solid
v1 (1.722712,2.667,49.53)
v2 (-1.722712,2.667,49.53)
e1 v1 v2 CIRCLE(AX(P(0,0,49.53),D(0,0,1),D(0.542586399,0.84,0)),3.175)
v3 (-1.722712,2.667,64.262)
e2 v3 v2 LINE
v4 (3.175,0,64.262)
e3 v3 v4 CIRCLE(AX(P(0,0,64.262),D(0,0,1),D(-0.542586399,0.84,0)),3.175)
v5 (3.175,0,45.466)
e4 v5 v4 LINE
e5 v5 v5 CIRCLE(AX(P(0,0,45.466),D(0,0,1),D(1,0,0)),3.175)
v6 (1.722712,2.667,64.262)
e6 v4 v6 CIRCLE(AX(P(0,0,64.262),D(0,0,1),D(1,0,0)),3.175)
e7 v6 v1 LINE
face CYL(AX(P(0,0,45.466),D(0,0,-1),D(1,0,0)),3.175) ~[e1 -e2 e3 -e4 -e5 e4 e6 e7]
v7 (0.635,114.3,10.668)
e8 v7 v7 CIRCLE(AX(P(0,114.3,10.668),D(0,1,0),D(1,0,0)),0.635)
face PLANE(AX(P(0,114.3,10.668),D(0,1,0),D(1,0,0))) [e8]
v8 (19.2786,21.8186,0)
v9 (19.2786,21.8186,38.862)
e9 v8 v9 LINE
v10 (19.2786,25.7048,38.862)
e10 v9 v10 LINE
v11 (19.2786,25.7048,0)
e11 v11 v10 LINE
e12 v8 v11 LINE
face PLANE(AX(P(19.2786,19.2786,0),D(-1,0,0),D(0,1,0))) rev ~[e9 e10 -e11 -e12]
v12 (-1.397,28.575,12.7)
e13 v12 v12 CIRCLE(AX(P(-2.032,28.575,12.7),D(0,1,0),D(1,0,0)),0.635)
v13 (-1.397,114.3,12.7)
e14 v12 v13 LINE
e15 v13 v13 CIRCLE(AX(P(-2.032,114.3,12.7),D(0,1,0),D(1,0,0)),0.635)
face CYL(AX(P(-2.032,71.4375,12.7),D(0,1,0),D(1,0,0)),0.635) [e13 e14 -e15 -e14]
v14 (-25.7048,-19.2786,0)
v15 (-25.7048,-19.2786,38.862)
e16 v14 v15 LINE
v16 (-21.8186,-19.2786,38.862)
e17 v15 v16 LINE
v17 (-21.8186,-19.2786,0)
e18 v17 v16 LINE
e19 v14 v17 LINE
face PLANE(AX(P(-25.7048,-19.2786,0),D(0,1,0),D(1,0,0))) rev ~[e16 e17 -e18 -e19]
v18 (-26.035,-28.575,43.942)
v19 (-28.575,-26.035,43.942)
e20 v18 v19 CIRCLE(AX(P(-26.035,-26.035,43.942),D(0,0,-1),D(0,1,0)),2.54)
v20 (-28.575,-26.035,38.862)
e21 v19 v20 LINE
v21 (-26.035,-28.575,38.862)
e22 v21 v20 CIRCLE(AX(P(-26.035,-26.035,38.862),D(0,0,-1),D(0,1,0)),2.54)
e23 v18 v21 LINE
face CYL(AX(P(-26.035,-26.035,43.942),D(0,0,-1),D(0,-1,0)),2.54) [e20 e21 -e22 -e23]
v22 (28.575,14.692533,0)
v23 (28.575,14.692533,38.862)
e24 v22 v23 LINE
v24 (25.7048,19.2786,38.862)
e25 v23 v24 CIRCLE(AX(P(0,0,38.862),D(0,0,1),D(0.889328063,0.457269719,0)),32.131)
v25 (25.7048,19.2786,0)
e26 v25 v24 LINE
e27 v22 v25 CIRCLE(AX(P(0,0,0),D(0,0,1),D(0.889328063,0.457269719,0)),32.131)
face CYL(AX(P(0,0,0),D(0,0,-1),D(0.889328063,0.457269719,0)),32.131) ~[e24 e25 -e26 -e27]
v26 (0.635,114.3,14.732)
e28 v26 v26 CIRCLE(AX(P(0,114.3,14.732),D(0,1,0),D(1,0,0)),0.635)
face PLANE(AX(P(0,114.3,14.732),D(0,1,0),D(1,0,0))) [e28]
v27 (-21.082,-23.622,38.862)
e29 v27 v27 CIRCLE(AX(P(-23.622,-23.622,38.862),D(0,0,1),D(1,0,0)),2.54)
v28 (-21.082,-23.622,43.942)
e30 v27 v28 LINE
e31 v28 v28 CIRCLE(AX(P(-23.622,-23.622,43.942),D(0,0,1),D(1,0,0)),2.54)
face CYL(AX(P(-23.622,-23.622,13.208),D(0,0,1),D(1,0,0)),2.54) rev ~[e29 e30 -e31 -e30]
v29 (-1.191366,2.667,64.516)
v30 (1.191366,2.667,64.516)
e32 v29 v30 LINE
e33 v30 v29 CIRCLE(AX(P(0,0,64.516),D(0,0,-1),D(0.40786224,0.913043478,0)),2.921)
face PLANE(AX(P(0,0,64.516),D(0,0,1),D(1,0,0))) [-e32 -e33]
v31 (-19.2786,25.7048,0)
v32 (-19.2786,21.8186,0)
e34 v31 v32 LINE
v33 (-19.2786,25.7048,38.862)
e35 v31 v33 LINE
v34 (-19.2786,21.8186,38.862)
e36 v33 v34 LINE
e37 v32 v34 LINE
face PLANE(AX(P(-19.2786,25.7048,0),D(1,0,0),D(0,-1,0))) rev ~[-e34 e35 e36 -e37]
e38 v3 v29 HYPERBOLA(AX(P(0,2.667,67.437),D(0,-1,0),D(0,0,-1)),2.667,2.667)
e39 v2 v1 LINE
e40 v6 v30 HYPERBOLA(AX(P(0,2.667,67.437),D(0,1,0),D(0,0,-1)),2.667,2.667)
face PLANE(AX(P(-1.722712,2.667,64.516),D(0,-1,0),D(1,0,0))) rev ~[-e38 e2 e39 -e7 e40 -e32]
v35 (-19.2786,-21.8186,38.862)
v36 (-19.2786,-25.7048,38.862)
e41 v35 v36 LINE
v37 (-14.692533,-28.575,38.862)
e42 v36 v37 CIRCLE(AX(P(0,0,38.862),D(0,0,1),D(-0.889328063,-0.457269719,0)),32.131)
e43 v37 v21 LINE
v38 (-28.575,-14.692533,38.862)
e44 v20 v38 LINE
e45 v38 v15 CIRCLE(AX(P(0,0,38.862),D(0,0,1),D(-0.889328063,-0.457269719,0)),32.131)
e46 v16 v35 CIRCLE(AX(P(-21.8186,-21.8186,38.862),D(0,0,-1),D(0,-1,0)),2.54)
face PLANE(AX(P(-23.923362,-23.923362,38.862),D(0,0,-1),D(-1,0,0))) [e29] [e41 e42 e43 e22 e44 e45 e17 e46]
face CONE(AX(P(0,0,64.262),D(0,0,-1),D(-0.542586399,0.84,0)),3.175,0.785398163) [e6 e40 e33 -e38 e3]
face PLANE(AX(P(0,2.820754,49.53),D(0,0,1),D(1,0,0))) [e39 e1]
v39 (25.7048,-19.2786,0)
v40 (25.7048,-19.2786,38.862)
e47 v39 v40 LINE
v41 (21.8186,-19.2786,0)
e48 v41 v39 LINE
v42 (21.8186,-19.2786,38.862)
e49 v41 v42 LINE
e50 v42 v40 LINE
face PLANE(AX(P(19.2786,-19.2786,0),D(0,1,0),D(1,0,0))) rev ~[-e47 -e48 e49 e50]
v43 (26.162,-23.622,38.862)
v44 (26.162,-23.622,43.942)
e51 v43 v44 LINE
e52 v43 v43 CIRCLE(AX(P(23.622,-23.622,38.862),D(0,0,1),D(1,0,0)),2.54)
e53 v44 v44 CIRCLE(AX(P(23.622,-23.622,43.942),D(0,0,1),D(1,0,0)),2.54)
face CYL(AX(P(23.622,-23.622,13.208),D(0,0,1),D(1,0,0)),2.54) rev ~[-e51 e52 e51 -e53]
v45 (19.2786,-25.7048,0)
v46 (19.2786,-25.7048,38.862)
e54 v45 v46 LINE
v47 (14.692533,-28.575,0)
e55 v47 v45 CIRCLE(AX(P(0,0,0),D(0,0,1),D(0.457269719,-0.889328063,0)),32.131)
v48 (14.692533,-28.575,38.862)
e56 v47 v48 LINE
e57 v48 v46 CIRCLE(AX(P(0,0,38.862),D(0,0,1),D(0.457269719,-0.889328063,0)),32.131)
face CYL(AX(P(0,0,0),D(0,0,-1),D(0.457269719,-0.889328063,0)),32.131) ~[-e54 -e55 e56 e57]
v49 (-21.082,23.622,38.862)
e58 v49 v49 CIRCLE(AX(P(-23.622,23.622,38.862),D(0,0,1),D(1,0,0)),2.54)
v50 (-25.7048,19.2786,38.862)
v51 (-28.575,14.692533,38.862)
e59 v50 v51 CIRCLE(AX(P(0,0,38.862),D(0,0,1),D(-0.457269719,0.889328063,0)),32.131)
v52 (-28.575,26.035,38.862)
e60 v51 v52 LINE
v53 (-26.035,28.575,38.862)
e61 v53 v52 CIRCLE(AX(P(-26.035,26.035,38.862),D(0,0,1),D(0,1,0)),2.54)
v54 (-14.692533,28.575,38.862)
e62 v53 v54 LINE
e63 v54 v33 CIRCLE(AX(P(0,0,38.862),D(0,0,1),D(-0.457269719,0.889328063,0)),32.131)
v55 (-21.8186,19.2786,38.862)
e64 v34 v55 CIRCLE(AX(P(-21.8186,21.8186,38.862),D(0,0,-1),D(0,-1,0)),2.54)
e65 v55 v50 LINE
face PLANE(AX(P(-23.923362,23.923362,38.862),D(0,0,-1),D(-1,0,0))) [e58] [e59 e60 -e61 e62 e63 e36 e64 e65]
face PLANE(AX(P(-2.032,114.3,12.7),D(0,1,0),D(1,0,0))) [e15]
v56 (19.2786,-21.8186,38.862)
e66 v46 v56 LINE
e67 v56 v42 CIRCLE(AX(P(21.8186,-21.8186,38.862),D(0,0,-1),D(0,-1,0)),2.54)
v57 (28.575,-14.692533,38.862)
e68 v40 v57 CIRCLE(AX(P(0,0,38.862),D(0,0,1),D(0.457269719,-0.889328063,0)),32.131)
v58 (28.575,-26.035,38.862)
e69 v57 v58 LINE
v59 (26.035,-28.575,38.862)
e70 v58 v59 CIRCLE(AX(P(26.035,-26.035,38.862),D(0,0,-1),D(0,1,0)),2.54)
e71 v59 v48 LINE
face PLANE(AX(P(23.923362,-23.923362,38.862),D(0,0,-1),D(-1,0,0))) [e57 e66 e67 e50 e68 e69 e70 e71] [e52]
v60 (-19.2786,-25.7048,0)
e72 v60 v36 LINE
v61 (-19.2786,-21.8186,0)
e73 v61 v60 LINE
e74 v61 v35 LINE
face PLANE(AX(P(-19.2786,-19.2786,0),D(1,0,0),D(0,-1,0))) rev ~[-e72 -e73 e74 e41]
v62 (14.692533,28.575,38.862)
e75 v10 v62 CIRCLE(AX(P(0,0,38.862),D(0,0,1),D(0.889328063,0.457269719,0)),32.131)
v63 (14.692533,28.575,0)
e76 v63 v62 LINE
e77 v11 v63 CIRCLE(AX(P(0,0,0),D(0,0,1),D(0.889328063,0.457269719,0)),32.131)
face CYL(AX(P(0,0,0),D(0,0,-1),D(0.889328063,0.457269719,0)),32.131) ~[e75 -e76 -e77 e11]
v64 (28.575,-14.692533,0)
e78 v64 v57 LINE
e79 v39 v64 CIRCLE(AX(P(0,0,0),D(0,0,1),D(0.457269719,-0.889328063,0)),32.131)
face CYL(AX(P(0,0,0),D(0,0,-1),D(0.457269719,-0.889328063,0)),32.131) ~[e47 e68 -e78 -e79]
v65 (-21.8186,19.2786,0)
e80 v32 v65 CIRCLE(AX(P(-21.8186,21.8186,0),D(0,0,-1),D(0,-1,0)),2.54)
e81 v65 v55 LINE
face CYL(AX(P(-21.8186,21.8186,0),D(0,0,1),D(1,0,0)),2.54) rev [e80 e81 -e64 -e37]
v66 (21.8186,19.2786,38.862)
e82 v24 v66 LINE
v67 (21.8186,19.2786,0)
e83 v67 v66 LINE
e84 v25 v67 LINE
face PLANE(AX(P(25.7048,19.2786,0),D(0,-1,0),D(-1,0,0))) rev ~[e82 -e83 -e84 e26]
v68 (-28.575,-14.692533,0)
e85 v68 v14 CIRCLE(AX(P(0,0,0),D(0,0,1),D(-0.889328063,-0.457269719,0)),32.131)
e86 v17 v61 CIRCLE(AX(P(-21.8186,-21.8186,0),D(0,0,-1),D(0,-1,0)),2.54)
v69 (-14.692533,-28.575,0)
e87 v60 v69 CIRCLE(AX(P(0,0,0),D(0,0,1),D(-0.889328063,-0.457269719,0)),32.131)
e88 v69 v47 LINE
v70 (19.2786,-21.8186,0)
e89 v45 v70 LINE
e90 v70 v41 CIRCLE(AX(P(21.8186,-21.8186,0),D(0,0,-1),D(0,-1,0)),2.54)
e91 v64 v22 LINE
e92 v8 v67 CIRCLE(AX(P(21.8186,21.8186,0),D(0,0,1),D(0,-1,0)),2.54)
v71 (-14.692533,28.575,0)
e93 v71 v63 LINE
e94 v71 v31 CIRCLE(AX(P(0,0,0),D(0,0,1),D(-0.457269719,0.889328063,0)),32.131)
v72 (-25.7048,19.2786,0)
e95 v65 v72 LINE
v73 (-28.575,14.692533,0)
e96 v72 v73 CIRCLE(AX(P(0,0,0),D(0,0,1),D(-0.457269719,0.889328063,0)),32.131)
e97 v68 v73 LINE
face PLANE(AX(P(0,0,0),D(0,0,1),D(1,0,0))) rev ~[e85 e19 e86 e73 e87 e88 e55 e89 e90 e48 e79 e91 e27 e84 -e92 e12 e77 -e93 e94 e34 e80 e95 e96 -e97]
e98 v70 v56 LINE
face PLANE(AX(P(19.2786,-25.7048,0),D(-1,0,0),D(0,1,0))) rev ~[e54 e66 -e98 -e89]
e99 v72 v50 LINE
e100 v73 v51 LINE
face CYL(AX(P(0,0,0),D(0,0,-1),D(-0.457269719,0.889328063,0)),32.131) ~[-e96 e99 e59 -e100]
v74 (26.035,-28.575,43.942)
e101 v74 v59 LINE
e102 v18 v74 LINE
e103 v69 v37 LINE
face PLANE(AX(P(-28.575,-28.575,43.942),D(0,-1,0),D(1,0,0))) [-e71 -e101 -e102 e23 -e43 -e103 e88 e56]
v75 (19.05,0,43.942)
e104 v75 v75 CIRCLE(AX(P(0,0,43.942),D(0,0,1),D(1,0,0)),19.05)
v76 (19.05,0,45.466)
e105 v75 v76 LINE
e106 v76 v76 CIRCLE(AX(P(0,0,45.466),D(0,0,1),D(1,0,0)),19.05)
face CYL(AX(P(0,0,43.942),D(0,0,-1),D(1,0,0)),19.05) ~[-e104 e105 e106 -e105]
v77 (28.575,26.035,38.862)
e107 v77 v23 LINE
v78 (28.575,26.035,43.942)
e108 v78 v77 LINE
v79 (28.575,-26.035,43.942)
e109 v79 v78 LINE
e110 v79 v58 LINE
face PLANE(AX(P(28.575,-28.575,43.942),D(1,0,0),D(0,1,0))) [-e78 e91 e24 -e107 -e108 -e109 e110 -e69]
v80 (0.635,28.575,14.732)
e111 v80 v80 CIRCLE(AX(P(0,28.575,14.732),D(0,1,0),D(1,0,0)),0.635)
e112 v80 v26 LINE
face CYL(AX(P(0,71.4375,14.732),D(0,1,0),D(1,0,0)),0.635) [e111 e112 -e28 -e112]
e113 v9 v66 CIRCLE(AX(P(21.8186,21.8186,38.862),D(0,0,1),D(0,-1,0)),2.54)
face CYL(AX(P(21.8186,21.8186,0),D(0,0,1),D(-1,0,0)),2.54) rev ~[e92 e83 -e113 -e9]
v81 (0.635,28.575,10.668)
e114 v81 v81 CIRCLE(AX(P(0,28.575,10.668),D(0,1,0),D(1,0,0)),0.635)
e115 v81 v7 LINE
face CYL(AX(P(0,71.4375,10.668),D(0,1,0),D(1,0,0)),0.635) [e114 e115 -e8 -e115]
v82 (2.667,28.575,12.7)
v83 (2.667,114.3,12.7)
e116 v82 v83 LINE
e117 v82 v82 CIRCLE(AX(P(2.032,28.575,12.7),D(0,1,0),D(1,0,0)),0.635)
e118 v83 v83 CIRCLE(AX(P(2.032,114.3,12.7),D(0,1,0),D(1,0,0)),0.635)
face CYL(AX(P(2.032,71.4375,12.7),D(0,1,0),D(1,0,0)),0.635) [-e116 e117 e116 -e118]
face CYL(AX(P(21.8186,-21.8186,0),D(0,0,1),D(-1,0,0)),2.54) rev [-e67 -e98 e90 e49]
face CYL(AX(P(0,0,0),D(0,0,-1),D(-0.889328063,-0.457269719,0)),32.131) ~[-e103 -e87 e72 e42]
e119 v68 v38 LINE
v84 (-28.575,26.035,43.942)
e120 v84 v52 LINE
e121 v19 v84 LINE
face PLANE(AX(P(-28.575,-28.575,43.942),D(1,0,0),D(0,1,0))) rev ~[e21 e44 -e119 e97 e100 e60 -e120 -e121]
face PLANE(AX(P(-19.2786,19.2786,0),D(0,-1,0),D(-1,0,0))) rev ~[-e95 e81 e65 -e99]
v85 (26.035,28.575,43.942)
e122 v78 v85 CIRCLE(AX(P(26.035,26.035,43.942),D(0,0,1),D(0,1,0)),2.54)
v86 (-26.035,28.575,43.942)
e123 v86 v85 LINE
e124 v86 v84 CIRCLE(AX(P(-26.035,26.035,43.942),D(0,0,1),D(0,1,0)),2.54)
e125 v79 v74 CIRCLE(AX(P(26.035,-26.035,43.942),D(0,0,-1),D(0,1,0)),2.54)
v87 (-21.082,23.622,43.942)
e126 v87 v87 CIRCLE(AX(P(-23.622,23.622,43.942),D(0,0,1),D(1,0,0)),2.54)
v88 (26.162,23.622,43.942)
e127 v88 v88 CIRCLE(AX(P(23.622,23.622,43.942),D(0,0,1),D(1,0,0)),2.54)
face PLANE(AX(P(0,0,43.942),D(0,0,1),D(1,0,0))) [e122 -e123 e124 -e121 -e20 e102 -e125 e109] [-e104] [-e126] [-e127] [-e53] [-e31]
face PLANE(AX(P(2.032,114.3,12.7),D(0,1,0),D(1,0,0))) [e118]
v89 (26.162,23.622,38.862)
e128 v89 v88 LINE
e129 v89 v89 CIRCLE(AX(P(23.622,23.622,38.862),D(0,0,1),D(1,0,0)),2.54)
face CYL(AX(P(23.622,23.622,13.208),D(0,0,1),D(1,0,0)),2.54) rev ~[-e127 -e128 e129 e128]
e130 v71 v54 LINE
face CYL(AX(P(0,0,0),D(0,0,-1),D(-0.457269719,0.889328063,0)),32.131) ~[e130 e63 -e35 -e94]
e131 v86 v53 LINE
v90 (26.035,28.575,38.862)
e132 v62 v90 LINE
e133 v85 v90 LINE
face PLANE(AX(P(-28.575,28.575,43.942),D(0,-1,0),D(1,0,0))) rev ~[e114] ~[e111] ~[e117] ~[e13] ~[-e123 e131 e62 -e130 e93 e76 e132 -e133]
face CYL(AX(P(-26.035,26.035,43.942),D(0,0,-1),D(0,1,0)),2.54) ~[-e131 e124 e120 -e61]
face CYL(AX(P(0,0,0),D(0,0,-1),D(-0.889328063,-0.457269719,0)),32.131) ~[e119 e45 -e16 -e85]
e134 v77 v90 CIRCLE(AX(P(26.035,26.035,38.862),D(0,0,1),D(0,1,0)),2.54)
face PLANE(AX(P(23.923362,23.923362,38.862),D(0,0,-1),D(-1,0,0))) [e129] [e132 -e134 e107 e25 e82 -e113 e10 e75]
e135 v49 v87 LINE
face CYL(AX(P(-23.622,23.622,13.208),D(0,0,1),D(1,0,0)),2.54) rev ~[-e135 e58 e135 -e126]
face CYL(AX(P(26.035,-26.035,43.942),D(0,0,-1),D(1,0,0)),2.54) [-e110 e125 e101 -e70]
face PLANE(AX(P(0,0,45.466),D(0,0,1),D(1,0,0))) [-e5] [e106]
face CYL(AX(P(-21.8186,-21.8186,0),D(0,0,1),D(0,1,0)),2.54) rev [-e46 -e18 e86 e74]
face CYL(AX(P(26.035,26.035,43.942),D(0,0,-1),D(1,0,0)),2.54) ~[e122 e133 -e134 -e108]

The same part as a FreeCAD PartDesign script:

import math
import FreeCAD as App
import Part
import Sketcher
Q = App.Units.Quantity


def edges_at(feature, points):
    """Names of the edges that pass closest to the given points."""
    edges = feature.Shape.Edges
    near = lambda p: min(range(len(edges)), key=lambda i: edges[i].distToShape(Part.Vertex(*p))[0])
    return sorted({f"Edge{near(p) + 1}" for p in points})


def add_polygon(sketch, points):
    """Adds a closed chain of lines whose ends are joined by coincident constraints."""
    first, n = sketch.GeometryCount, len(points)
    for a, b in zip(points, points[1:] + points[:1]):
        sketch.addGeometry(Part.LineSegment(App.Vector(*a, 0), App.Vector(*b, 0)), False)
    for i in range(n):
        sketch.addConstraint(Sketcher.Constraint("Coincident", first + i, 2, first + (i + 1) % n, 1))

doc = App.newDocument("Part")
params = doc.addObject("Spreadsheet::Sheet", "Params")
for row, (alias, value) in enumerate([
    ("sketch1_width", "2.25 in"),
    ("pad1_length", "1.73 in"),
    ("sketch2_radius", "1.265 in"),
    ("pocket1_length", "1.53 in"),
    ("sketch3_radius", "1.265 in"),
    ("sketch3_width", "0.253 in"),
    ("pocket2_length", "1.53 in"),
    ("sketch4_radius", "1.265 in"),
    ("pocket3_length", "1.53 in"),
    ("sketch5_radius", "1.265 in"),
    ("sketch5_width", "0.253 in"),
    ("pocket4_length", "1.53 in"),
    ("sketch6_radius", "1.265 in"),
    ("pocket5_length", "1.53 in"),
    ("sketch7_radius", "1.265 in"),
    ("sketch7_width", "0.253 in"),
    ("pocket6_length", "1.53 in"),
    ("sketch8_radius", "1.265 in"),
    ("pocket7_length", "1.53 in"),
    ("sketch9_radius", "1.265 in"),
    ("sketch9_width", "0.253 in"),
    ("pocket8_length", "1.53 in"),
    ("sketch10_diameter", "1.5 in"),
    ("pad2_length", "0.06 in"),
    ("sketch11_diameter", "0.25 in"),
    ("pad3_length", "0.75 in"),
    ("sketch12_radius", "0.125 in"),
    ("pocket9_length", "0.59 in"),
    ("sketch13_width", "0.025 in"),
    ("sketch13_height", "3.375 in"),
    ("revolution_angle", "360 deg"),
    ("sketch14_width", "0.025 in"),
    ("sketch14_height", "3.375 in"),
    ("revolution2_angle", "360 deg"),
    ("sketch15_width", "0.025 in"),
    ("sketch15_height", "3.375 in"),
    ("revolution3_angle", "360 deg"),
    ("sketch16_width", "0.025 in"),
    ("sketch16_height", "3.375 in"),
    ("revolution4_angle", "360 deg"),
    ("sketch17_diameter", "0.2 in"),
    ("hole_diameter", "0.2 in"),
    ("hole_depth", "1.01 in"),
    ("chamfer_size", "0.01 in"),
    ("fillet_radius", "0.1 in"),
], start=1):
    params.set(f"A{row}", alias)
    params.set(f"B{row}", "=" + value)
    params.setAlias(f"B{row}", alias)

body = doc.addObject("PartDesign::Body", "Body")

# Sketch on XY plane
sketch1 = doc.addObject("Sketcher::SketchObject", "Sketch")
body.addObject(sketch1)
sketch1.AttachmentSupport = (doc.XY_Plane, [""])
sketch1.MapMode = "FlatFace"
sketch1.AttachmentOffset = App.Placement(App.Vector(0, 0, 1.73 * 25.4), App.Rotation())
add_polygon(sketch1, [(-29, 29), (-29, -29), (29, -29), (29, 29)])  # lines 0-3
sketch1.addConstraint([
    Sketcher.Constraint("Vertical", 0),
    Sketcher.Constraint("Horizontal", 1),
    Sketcher.Constraint("Vertical", 2),
    Sketcher.Constraint("Horizontal", 3),
    Sketcher.Constraint("Symmetric", 0, 2, 2, 2, -1, 1),
    Sketcher.Constraint("Equal", 3, 0),
    Sketcher.Constraint("DistanceX", 1, 1, 1, 2, Q("2.25 in")),
])
sketch1.setExpression("Constraints[10]", "Params.sketch1_width")
pad1 = doc.addObject("PartDesign::Pad", "Pad")
body.addObject(pad1)
pad1.Profile = sketch1
pad1.setExpression("Length", "Params.pad1_length")
pad1.Reversed = True

# Sketch on XY plane
sketch2 = doc.addObject("Sketcher::SketchObject", "Sketch001")
body.addObject(sketch2)
sketch2.AttachmentSupport = (doc.XY_Plane, [""])
sketch2.MapMode = "FlatFace"
sketch2.addGeometry([
    Part.LineSegment(App.Vector(29, -29, 0), App.Vector(15, -29, 0)),
    Part.ArcOfCircle(Part.Circle(App.Vector(0, 0, 0), App.Vector(0, 0, 1), 32), math.radians(-63), math.radians(-27)),
    Part.LineSegment(App.Vector(29, -15, 0), App.Vector(29, -29, 0)),
], False)
sketch2.addConstraint([
    Sketcher.Constraint("Coincident", 0, 2, 1, 1),
    Sketcher.Constraint("Coincident", 1, 2, 2, 1),
    Sketcher.Constraint("Coincident", 2, 2, 0, 1),
    Sketcher.Constraint("Horizontal", 0),
    Sketcher.Constraint("Vertical", 2),
    Sketcher.Constraint("Coincident", 1, 3, -1, 1),
    Sketcher.Constraint("Equal", 0, 2),
    Sketcher.Constraint("Radius", 1, Q("1.265 in")),
    Sketcher.Constraint("DistanceY", 0, 2, -1, 1, Q("1.125 in")),
])
sketch2.setExpression("Constraints[7]", "Params.sketch2_radius")
pocket1 = doc.addObject("PartDesign::Pocket", "Pocket")
body.addObject(pocket1)
pocket1.Profile = sketch2
pocket1.setExpression("Length", "Params.pocket1_length")
pocket1.Reversed = True

# Sketch on XY plane
sketch3 = doc.addObject("Sketcher::SketchObject", "Sketch002")
body.addObject(sketch3)
sketch3.AttachmentSupport = (doc.XY_Plane, [""])
sketch3.MapMode = "FlatFace"
sketch3.addGeometry([
    Part.LineSegment(App.Vector(19, -26, 0), App.Vector(19, -19, 0)),
    Part.LineSegment(App.Vector(19, -19, 0), App.Vector(26, -19, 0)),
    Part.ArcOfCircle(Part.Circle(App.Vector(0, 0, 0), App.Vector(0, 0, 1), 32), math.radians(-53.13), math.radians(-36.87)),
], False)
sketch3.addConstraint([
    Sketcher.Constraint("Coincident", 0, 2, 1, 1),
    Sketcher.Constraint("Coincident", 1, 2, 2, 2),
    Sketcher.Constraint("Coincident", 2, 1, 0, 1),
    Sketcher.Constraint("Vertical", 0),
    Sketcher.Constraint("Horizontal", 1),
    Sketcher.Constraint("Coincident", 2, 3, -1, 1),
    Sketcher.Constraint("Equal", 1, 0),
    Sketcher.Constraint("Radius", 2, Q("1.265 in")),
    Sketcher.Constraint("DistanceX", 1, 1, 1, 2, Q("0.253 in")),
])
sketch3.setExpression("Constraints[7]", "Params.sketch3_radius")
sketch3.setExpression("Constraints[8]", "Params.sketch3_width")
pocket2 = doc.addObject("PartDesign::Pocket", "Pocket001")
body.addObject(pocket2)
pocket2.Profile = sketch3
pocket2.setExpression("Length", "Params.pocket2_length")
pocket2.Reversed = True

# Sketch on XY plane
sketch4 = doc.addObject("Sketcher::SketchObject", "Sketch003")
body.addObject(sketch4)
sketch4.AttachmentSupport = (doc.XY_Plane, [""])
sketch4.MapMode = "FlatFace"
sketch4.addGeometry([
    Part.LineSegment(App.Vector(29, 29, 0), App.Vector(29, 15, 0)),
    Part.ArcOfCircle(Part.Circle(App.Vector(0, 0, 0), App.Vector(0, 0, 1), 32), math.radians(27), math.radians(63)),
    Part.LineSegment(App.Vector(15, 29, 0), App.Vector(29, 29, 0)),
], False)
sketch4.addConstraint([
    Sketcher.Constraint("Coincident", 0, 2, 1, 1),
    Sketcher.Constraint("Coincident", 1, 2, 2, 1),
    Sketcher.Constraint("Coincident", 2, 2, 0, 1),
    Sketcher.Constraint("Vertical", 0),
    Sketcher.Constraint("Horizontal", 2),
    Sketcher.Constraint("Coincident", 1, 3, -1, 1),
    Sketcher.Constraint("Equal", 2, 0),
    Sketcher.Constraint("Radius", 1, Q("1.265 in")),
    Sketcher.Constraint("DistanceX", -1, 1, 0, 2, Q("1.125 in")),
])
sketch4.setExpression("Constraints[7]", "Params.sketch4_radius")
pocket3 = doc.addObject("PartDesign::Pocket", "Pocket002")
body.addObject(pocket3)
pocket3.Profile = sketch4
pocket3.setExpression("Length", "Params.pocket3_length")
pocket3.Reversed = True

# Sketch on XY plane
sketch5 = doc.addObject("Sketcher::SketchObject", "Sketch004")
body.addObject(sketch5)
sketch5.AttachmentSupport = (doc.XY_Plane, [""])
sketch5.MapMode = "FlatFace"
sketch5.addGeometry([
    Part.LineSegment(App.Vector(26, 19, 0), App.Vector(19, 19, 0)),
    Part.LineSegment(App.Vector(19, 19, 0), App.Vector(19, 26, 0)),
    Part.ArcOfCircle(Part.Circle(App.Vector(0, 0, 0), App.Vector(0, 0, 1), 32), math.radians(36.87), math.radians(53.13)),
], False)
sketch5.addConstraint([
    Sketcher.Constraint("Coincident", 0, 2, 1, 1),
    Sketcher.Constraint("Coincident", 1, 2, 2, 2),
    Sketcher.Constraint("Coincident", 2, 1, 0, 1),
    Sketcher.Constraint("Horizontal", 0),
    Sketcher.Constraint("Vertical", 1),
    Sketcher.Constraint("Coincident", 2, 3, -1, 1),
    Sketcher.Constraint("Equal", 0, 1),
    Sketcher.Constraint("Radius", 2, Q("1.265 in")),
    Sketcher.Constraint("DistanceX", 0, 2, 0, 1, Q("0.253 in")),
])
sketch5.setExpression("Constraints[7]", "Params.sketch5_radius")
sketch5.setExpression("Constraints[8]", "Params.sketch5_width")
pocket4 = doc.addObject("PartDesign::Pocket", "Pocket003")
body.addObject(pocket4)
pocket4.Profile = sketch5
pocket4.setExpression("Length", "Params.pocket4_length")
pocket4.Reversed = True

# Sketch on XY plane
sketch6 = doc.addObject("Sketcher::SketchObject", "Sketch005")
body.addObject(sketch6)
sketch6.AttachmentSupport = (doc.XY_Plane, [""])
sketch6.MapMode = "FlatFace"
sketch6.addGeometry([
    Part.LineSegment(App.Vector(-29, 29, 0), App.Vector(-15, 29, 0)),
    Part.ArcOfCircle(Part.Circle(App.Vector(0, 0, 0), App.Vector(0, 0, 1), 32), math.radians(117), math.radians(153)),
    Part.LineSegment(App.Vector(-29, 15, 0), App.Vector(-29, 29, 0)),
], False)
sketch6.addConstraint([
    Sketcher.Constraint("Coincident", 0, 2, 1, 1),
    Sketcher.Constraint("Coincident", 1, 2, 2, 1),
    Sketcher.Constraint("Coincident", 2, 2, 0, 1),
    Sketcher.Constraint("Horizontal", 0),
    Sketcher.Constraint("Vertical", 2),
    Sketcher.Constraint("Coincident", 1, 3, -1, 1),
    Sketcher.Constraint("Equal", 0, 2),
    Sketcher.Constraint("Radius", 1, Q("1.265 in")),
    Sketcher.Constraint("DistanceY", -1, 1, 0, 2, Q("1.125 in")),
])
sketch6.setExpression("Constraints[7]", "Params.sketch6_radius")
pocket5 = doc.addObject("PartDesign::Pocket", "Pocket004")
body.addObject(pocket5)
pocket5.Profile = sketch6
pocket5.setExpression("Length", "Params.pocket5_length")
pocket5.Reversed = True

# Sketch on XY plane
sketch7 = doc.addObject("Sketcher::SketchObject", "Sketch006")
body.addObject(sketch7)
sketch7.AttachmentSupport = (doc.XY_Plane, [""])
sketch7.MapMode = "FlatFace"
sketch7.addGeometry([
    Part.LineSegment(App.Vector(-19, 26, 0), App.Vector(-19, 19, 0)),
    Part.LineSegment(App.Vector(-19, 19, 0), App.Vector(-26, 19, 0)),
    Part.ArcOfCircle(Part.Circle(App.Vector(0, 0, 0), App.Vector(0, 0, 1), 32), math.radians(126.87), math.radians(143.13)),
], False)
sketch7.addConstraint([
    Sketcher.Constraint("Coincident", 0, 2, 1, 1),
    Sketcher.Constraint("Coincident", 1, 2, 2, 2),
    Sketcher.Constraint("Coincident", 2, 1, 0, 1),
    Sketcher.Constraint("Vertical", 0),
    Sketcher.Constraint("Horizontal", 1),
    Sketcher.Constraint("Coincident", 2, 3, -1, 1),
    Sketcher.Constraint("Equal", 1, 0),
    Sketcher.Constraint("Radius", 2, Q("1.265 in")),
    Sketcher.Constraint("DistanceX", 1, 2, 1, 1, Q("0.253 in")),
])
sketch7.setExpression("Constraints[7]", "Params.sketch7_radius")
sketch7.setExpression("Constraints[8]", "Params.sketch7_width")
pocket6 = doc.addObject("PartDesign::Pocket", "Pocket005")
body.addObject(pocket6)
pocket6.Profile = sketch7
pocket6.setExpression("Length", "Params.pocket6_length")
pocket6.Reversed = True

# Sketch on XY plane
sketch8 = doc.addObject("Sketcher::SketchObject", "Sketch007")
body.addObject(sketch8)
sketch8.AttachmentSupport = (doc.XY_Plane, [""])
sketch8.MapMode = "FlatFace"
sketch8.addGeometry([
    Part.LineSegment(App.Vector(-29, -29, 0), App.Vector(-29, -15, 0)),
    Part.ArcOfCircle(Part.Circle(App.Vector(0, 0, 0), App.Vector(0, 0, 1), 32), math.radians(-153), math.radians(-117)),
    Part.LineSegment(App.Vector(-15, -29, 0), App.Vector(-29, -29, 0)),
], False)
sketch8.addConstraint([
    Sketcher.Constraint("Coincident", 0, 2, 1, 1),
    Sketcher.Constraint("Coincident", 1, 2, 2, 1),
    Sketcher.Constraint("Coincident", 2, 2, 0, 1),
    Sketcher.Constraint("Vertical", 0),
    Sketcher.Constraint("Horizontal", 2),
    Sketcher.Constraint("Coincident", 1, 3, -1, 1),
    Sketcher.Constraint("Equal", 2, 0),
    Sketcher.Constraint("Radius", 1, Q("1.265 in")),
    Sketcher.Constraint("DistanceX", 0, 2, -1, 1, Q("1.125 in")),
])
sketch8.setExpression("Constraints[7]", "Params.sketch8_radius")
pocket7 = doc.addObject("PartDesign::Pocket", "Pocket006")
body.addObject(pocket7)
pocket7.Profile = sketch8
pocket7.setExpression("Length", "Params.pocket7_length")
pocket7.Reversed = True

# Sketch on XY plane
sketch9 = doc.addObject("Sketcher::SketchObject", "Sketch008")
body.addObject(sketch9)
sketch9.AttachmentSupport = (doc.XY_Plane, [""])
sketch9.MapMode = "FlatFace"
sketch9.addGeometry([
    Part.LineSegment(App.Vector(-26, -19, 0), App.Vector(-19, -19, 0)),
    Part.LineSegment(App.Vector(-19, -19, 0), App.Vector(-19, -26, 0)),
    Part.ArcOfCircle(Part.Circle(App.Vector(0, 0, 0), App.Vector(0, 0, 1), 32), math.radians(-143.13), math.radians(-126.87)),
], False)
sketch9.addConstraint([
    Sketcher.Constraint("Coincident", 0, 2, 1, 1),
    Sketcher.Constraint("Coincident", 1, 2, 2, 2),
    Sketcher.Constraint("Coincident", 2, 1, 0, 1),
    Sketcher.Constraint("Horizontal", 0),
    Sketcher.Constraint("Vertical", 1),
    Sketcher.Constraint("Coincident", 2, 3, -1, 1),
    Sketcher.Constraint("Equal", 0, 1),
    Sketcher.Constraint("Radius", 2, Q("1.265 in")),
    Sketcher.Constraint("DistanceX", 0, 1, 0, 2, Q("0.253 in")),
])
sketch9.setExpression("Constraints[7]", "Params.sketch9_radius")
sketch9.setExpression("Constraints[8]", "Params.sketch9_width")
pocket8 = doc.addObject("PartDesign::Pocket", "Pocket007")
body.addObject(pocket8)
pocket8.Profile = sketch9
pocket8.setExpression("Length", "Params.pocket8_length")
pocket8.Reversed = True

# Sketch on XY plane
sketch10 = doc.addObject("Sketcher::SketchObject", "Sketch009")
body.addObject(sketch10)
sketch10.AttachmentSupport = (doc.XY_Plane, [""])
sketch10.MapMode = "FlatFace"
sketch10.AttachmentOffset = App.Placement(App.Vector(0, 0, 1.73 * 25.4), App.Rotation())
sketch10.addGeometry(Part.Circle(App.Vector(0, 0, 0), App.Vector(0, 0, 1), 19), False)
sketch10.addConstraint([
    Sketcher.Constraint("Coincident", 0, 3, -1, 1),
    Sketcher.Constraint("Diameter", 0, Q("1.5 in")),
])
sketch10.setExpression("Constraints[1]", "Params.sketch10_diameter")
pad2 = doc.addObject("PartDesign::Pad", "Pad001")
body.addObject(pad2)
pad2.Profile = sketch10
pad2.setExpression("Length", "Params.pad2_length")

# Sketch on XY plane
sketch11 = doc.addObject("Sketcher::SketchObject", "Sketch010")
body.addObject(sketch11)
sketch11.AttachmentSupport = (doc.XY_Plane, [""])
sketch11.MapMode = "FlatFace"
sketch11.AttachmentOffset = App.Placement(App.Vector(0, 0, 1.79 * 25.4), App.Rotation())
sketch11.addGeometry(Part.Circle(App.Vector(0, 0, 0), App.Vector(0, 0, 1), 3.2), False)
sketch11.addConstraint([
    Sketcher.Constraint("Coincident", 0, 3, -1, 1),
    Sketcher.Constraint("Diameter", 0, Q("0.25 in")),
])
sketch11.setExpression("Constraints[1]", "Params.sketch11_diameter")
pad3 = doc.addObject("PartDesign::Pad", "Pad002")
body.addObject(pad3)
pad3.Profile = sketch11
pad3.setExpression("Length", "Params.pad3_length")

# Sketch on XY plane
sketch12 = doc.addObject("Sketcher::SketchObject", "Sketch011")
body.addObject(sketch12)
sketch12.AttachmentSupport = (doc.XY_Plane, [""])
sketch12.MapMode = "FlatFace"
sketch12.AttachmentOffset = App.Placement(App.Vector(0, 0, 2.54 * 25.4), App.Rotation())
sketch12.addGeometry([
    Part.LineSegment(App.Vector(-1.7, 2.7, 0), App.Vector(1.7, 2.7, 0)),
    Part.ArcOfCircle(Part.Circle(App.Vector(0, 0, 0), App.Vector(0, 0, 1), 3.2), math.radians(57), math.radians(123)),
], False)
sketch12.addConstraint([
    Sketcher.Constraint("Coincident", 0, 1, 1, 2),
    Sketcher.Constraint("Coincident", 1, 1, 0, 2),
    Sketcher.Constraint("Horizontal", 0),
    Sketcher.Constraint("Coincident", 1, 3, -1, 1),
    Sketcher.Constraint("Radius", 1, Q("0.125 in")),
    Sketcher.Constraint("DistanceY", -1, 1, 0, 1, Q("0.105 in")),
])
sketch12.setExpression("Constraints[4]", "Params.sketch12_radius")
pocket9 = doc.addObject("PartDesign::Pocket", "Pocket008")
body.addObject(pocket9)
pocket9.Profile = sketch12
pocket9.setExpression("Length", "Params.pocket9_length")

# Sketch on XY plane
sketch13 = doc.addObject("Sketcher::SketchObject", "Sketch012")
body.addObject(sketch13)
sketch13.AttachmentSupport = (doc.XY_Plane, [""])
sketch13.MapMode = "FlatFace"
sketch13.AttachmentOffset = App.Placement(App.Vector(0, 0, 0.5 * 25.4), App.Rotation())
add_polygon(sketch13, [(-1.4, 114.3), (-1.4, 28.6), (-2, 28.6), (-2, 114.3)])  # lines 0-3
sketch13.addGeometry(Part.LineSegment(App.Vector(-2, 28.6, 0), App.Vector(-2, 114.3, 0)), True)  # axis
sketch13.addConstraint([
    Sketcher.Constraint("Vertical", 0),
    Sketcher.Constraint("Horizontal", 1),
    Sketcher.Constraint("Vertical", 2),
    Sketcher.Constraint("Horizontal", 3),
    Sketcher.Constraint("Vertical", 4),
    Sketcher.Constraint("Coincident", 4, 1, 1, 2),
    Sketcher.Constraint("Horizontal", 3, 2, 4, 2),
    Sketcher.Constraint("DistanceY", -1, 1, 2, 2, Q("4.5 in")),
    Sketcher.Constraint("DistanceX", 1, 2, 1, 1, Q("0.025 in")),
    Sketcher.Constraint("DistanceY", 0, 2, 0, 1, Q("3.375 in")),
    Sketcher.Constraint("DistanceX", 1, 2, -1, 1, Q("0.08 in")),
])
sketch13.setExpression("Constraints[12]", "Params.sketch13_width")
sketch13.setExpression("Constraints[13]", "Params.sketch13_height")
revolution = doc.addObject("PartDesign::Revolution", "Revolution")
body.addObject(revolution)
revolution.Profile = sketch13
revolution.ReferenceAxis = (sketch13, ["Axis0"])
revolution.setExpression("Angle", "Params.revolution_angle")

# Sketch on XY plane
sketch14 = doc.addObject("Sketcher::SketchObject", "Sketch013")
body.addObject(sketch14)
sketch14.AttachmentSupport = (doc.XY_Plane, [""])
sketch14.MapMode = "FlatFace"
sketch14.AttachmentOffset = App.Placement(App.Vector(0, 0, 0.5 * 25.4), App.Rotation())
add_polygon(sketch14, [(2.7, 114.3), (2.7, 28.6), (2, 28.6), (2, 114.3)])  # lines 0-3
sketch14.addGeometry(Part.LineSegment(App.Vector(2, 28.6, 0), App.Vector(2, 114.3, 0)), True)  # axis
sketch14.addConstraint([
    Sketcher.Constraint("Vertical", 0),
    Sketcher.Constraint("Horizontal", 1),
    Sketcher.Constraint("Vertical", 2),
    Sketcher.Constraint("Horizontal", 3),
    Sketcher.Constraint("Vertical", 4),
    Sketcher.Constraint("Coincident", 4, 1, 1, 2),
    Sketcher.Constraint("Horizontal", 3, 2, 4, 2),
    Sketcher.Constraint("DistanceY", -1, 1, 2, 2, Q("4.5 in")),
    Sketcher.Constraint("DistanceX", 1, 2, 1, 1, Q("0.025 in")),
    Sketcher.Constraint("DistanceY", 0, 2, 0, 1, Q("3.375 in")),
    Sketcher.Constraint("DistanceX", -1, 1, 1, 2, Q("0.08 in")),
])
sketch14.setExpression("Constraints[12]", "Params.sketch14_width")
sketch14.setExpression("Constraints[13]", "Params.sketch14_height")
revolution2 = doc.addObject("PartDesign::Revolution", "Revolution001")
body.addObject(revolution2)
revolution2.Profile = sketch14
revolution2.ReferenceAxis = (sketch14, ["Axis0"])
revolution2.setExpression("Angle", "Params.revolution2_angle")

# Sketch on XY plane
sketch15 = doc.addObject("Sketcher::SketchObject", "Sketch014")
body.addObject(sketch15)
sketch15.AttachmentSupport = (doc.XY_Plane, [""])
sketch15.MapMode = "FlatFace"
sketch15.AttachmentOffset = App.Placement(App.Vector(0, 0, 0.58 * 25.4), App.Rotation())
add_polygon(sketch15, [(0.6, 114.3), (0.6, 28.6), (0, 28.6), (0, 114.3)])  # lines 0-3
sketch15.addConstraint([
    Sketcher.Constraint("Vertical", 0),
    Sketcher.Constraint("Horizontal", 1),
    Sketcher.Constraint("Vertical", 2),
    Sketcher.Constraint("Horizontal", 3),
    Sketcher.Constraint("PointOnObject", 1, 2, -2),
    Sketcher.Constraint("DistanceY", -1, 1, 2, 2, Q("4.5 in")),
    Sketcher.Constraint("DistanceX", 1, 2, 1, 1, Q("0.025 in")),
    Sketcher.Constraint("DistanceY", 0, 2, 0, 1, Q("3.375 in")),
])
sketch15.setExpression("Constraints[10]", "Params.sketch15_width")
sketch15.setExpression("Constraints[11]", "Params.sketch15_height")
revolution3 = doc.addObject("PartDesign::Revolution", "Revolution002")
body.addObject(revolution3)
revolution3.Profile = sketch15
revolution3.ReferenceAxis = (sketch15, ["V_Axis"])
revolution3.setExpression("Angle", "Params.revolution3_angle")

# Sketch on XY plane
sketch16 = doc.addObject("Sketcher::SketchObject", "Sketch015")
body.addObject(sketch16)
sketch16.AttachmentSupport = (doc.XY_Plane, [""])
sketch16.MapMode = "FlatFace"
sketch16.AttachmentOffset = App.Placement(App.Vector(0, 0, 0.42 * 25.4), App.Rotation())
add_polygon(sketch16, [(0.6, 114.3), (0.6, 28.6), (0, 28.6), (0, 114.3)])  # lines 0-3
sketch16.addConstraint([
    Sketcher.Constraint("Vertical", 0),
    Sketcher.Constraint("Horizontal", 1),
    Sketcher.Constraint("Vertical", 2),
    Sketcher.Constraint("Horizontal", 3),
    Sketcher.Constraint("PointOnObject", 1, 2, -2),
    Sketcher.Constraint("DistanceY", -1, 1, 2, 2, Q("4.5 in")),
    Sketcher.Constraint("DistanceX", 1, 2, 1, 1, Q("0.025 in")),
    Sketcher.Constraint("DistanceY", 0, 2, 0, 1, Q("3.375 in")),
])
sketch16.setExpression("Constraints[10]", "Params.sketch16_width")
sketch16.setExpression("Constraints[11]", "Params.sketch16_height")
revolution4 = doc.addObject("PartDesign::Revolution", "Revolution003")
body.addObject(revolution4)
revolution4.Profile = sketch16
revolution4.ReferenceAxis = (sketch16, ["V_Axis"])
revolution4.setExpression("Angle", "Params.revolution4_angle")

# Sketch on XY plane
sketch17 = doc.addObject("Sketcher::SketchObject", "Sketch016")
body.addObject(sketch17)
sketch17.AttachmentSupport = (doc.XY_Plane, [""])
sketch17.MapMode = "FlatFace"
sketch17.AttachmentOffset = App.Placement(App.Vector(0, 0, 1.53 * 25.4), App.Rotation())
sketch17.addGeometry([
    Part.Circle(App.Vector(23.6, -23.6, 0), App.Vector(0, 0, 1), 2.5),
    Part.Circle(App.Vector(23.6, 23.6, 0), App.Vector(0, 0, 1), 2.5),
    Part.Circle(App.Vector(-23.6, 23.6, 0), App.Vector(0, 0, 1), 2.5),
    Part.Circle(App.Vector(-23.6, -23.6, 0), App.Vector(0, 0, 1), 2.5),
], False)
sketch17.addConstraint([
    Sketcher.Constraint("Equal", 0, 1),
    Sketcher.Constraint("Equal", 1, 2),
    Sketcher.Constraint("Equal", 2, 3),
    Sketcher.Constraint("Symmetric", 0, 3, 2, 3, -1, 1),
    Sketcher.Constraint("Symmetric", 1, 3, 3, 3, -1, 1),
    Sketcher.Constraint("Symmetric", 1, 3, 2, 3, -2),
    Sketcher.Constraint("Diameter", 0, Q("0.2 in")),
    Sketcher.Constraint("DistanceX", -1, 1, 0, 3, Q("0.93 in")),
    Sketcher.Constraint("DistanceY", 0, 3, -1, 1, Q("0.93 in")),
])
sketch17.setExpression("Constraints[6]", "Params.sketch17_diameter")
doc.recompute()
hole = doc.addObject("PartDesign::Hole", "Hole")
body.addObject(hole)
hole.Profile = sketch17
hole.ThreadType = "None"
hole.setExpression("Diameter", "Params.hole_diameter")
hole.DepthType = "Dimension"
hole.setExpression("Depth", "Params.hole_depth")
hole.DrillPoint = "Flat"
hole.Reversed = True
doc.recompute()

chamfer = doc.addObject("PartDesign::Chamfer", "Chamfer")
body.addObject(chamfer)
chamfer.Base = (hole, edges_at(hole, [(-1.518, -2.788, 64.516)]))
chamfer.setExpression("Size", "Params.chamfer_size")
doc.recompute()

fillet = doc.addObject("PartDesign::Fillet", "Fillet")
body.addObject(fillet)
fillet.Base = (chamfer, edges_at(chamfer, [
    (-19.279, -19.279, 19.431),
    (28.575, -28.575, 41.402),
    (19.279, -19.279, 19.431),
    (28.575, 28.575, 41.402),
    (19.279, 19.279, 19.431),
    (-28.575, 28.575, 41.402),
    (-19.279, 19.279, 19.431),
    (-28.575, -28.575, 41.402),
]))
fillet.setExpression("Radius", "Params.fillet_radius")

doc.recompute()
